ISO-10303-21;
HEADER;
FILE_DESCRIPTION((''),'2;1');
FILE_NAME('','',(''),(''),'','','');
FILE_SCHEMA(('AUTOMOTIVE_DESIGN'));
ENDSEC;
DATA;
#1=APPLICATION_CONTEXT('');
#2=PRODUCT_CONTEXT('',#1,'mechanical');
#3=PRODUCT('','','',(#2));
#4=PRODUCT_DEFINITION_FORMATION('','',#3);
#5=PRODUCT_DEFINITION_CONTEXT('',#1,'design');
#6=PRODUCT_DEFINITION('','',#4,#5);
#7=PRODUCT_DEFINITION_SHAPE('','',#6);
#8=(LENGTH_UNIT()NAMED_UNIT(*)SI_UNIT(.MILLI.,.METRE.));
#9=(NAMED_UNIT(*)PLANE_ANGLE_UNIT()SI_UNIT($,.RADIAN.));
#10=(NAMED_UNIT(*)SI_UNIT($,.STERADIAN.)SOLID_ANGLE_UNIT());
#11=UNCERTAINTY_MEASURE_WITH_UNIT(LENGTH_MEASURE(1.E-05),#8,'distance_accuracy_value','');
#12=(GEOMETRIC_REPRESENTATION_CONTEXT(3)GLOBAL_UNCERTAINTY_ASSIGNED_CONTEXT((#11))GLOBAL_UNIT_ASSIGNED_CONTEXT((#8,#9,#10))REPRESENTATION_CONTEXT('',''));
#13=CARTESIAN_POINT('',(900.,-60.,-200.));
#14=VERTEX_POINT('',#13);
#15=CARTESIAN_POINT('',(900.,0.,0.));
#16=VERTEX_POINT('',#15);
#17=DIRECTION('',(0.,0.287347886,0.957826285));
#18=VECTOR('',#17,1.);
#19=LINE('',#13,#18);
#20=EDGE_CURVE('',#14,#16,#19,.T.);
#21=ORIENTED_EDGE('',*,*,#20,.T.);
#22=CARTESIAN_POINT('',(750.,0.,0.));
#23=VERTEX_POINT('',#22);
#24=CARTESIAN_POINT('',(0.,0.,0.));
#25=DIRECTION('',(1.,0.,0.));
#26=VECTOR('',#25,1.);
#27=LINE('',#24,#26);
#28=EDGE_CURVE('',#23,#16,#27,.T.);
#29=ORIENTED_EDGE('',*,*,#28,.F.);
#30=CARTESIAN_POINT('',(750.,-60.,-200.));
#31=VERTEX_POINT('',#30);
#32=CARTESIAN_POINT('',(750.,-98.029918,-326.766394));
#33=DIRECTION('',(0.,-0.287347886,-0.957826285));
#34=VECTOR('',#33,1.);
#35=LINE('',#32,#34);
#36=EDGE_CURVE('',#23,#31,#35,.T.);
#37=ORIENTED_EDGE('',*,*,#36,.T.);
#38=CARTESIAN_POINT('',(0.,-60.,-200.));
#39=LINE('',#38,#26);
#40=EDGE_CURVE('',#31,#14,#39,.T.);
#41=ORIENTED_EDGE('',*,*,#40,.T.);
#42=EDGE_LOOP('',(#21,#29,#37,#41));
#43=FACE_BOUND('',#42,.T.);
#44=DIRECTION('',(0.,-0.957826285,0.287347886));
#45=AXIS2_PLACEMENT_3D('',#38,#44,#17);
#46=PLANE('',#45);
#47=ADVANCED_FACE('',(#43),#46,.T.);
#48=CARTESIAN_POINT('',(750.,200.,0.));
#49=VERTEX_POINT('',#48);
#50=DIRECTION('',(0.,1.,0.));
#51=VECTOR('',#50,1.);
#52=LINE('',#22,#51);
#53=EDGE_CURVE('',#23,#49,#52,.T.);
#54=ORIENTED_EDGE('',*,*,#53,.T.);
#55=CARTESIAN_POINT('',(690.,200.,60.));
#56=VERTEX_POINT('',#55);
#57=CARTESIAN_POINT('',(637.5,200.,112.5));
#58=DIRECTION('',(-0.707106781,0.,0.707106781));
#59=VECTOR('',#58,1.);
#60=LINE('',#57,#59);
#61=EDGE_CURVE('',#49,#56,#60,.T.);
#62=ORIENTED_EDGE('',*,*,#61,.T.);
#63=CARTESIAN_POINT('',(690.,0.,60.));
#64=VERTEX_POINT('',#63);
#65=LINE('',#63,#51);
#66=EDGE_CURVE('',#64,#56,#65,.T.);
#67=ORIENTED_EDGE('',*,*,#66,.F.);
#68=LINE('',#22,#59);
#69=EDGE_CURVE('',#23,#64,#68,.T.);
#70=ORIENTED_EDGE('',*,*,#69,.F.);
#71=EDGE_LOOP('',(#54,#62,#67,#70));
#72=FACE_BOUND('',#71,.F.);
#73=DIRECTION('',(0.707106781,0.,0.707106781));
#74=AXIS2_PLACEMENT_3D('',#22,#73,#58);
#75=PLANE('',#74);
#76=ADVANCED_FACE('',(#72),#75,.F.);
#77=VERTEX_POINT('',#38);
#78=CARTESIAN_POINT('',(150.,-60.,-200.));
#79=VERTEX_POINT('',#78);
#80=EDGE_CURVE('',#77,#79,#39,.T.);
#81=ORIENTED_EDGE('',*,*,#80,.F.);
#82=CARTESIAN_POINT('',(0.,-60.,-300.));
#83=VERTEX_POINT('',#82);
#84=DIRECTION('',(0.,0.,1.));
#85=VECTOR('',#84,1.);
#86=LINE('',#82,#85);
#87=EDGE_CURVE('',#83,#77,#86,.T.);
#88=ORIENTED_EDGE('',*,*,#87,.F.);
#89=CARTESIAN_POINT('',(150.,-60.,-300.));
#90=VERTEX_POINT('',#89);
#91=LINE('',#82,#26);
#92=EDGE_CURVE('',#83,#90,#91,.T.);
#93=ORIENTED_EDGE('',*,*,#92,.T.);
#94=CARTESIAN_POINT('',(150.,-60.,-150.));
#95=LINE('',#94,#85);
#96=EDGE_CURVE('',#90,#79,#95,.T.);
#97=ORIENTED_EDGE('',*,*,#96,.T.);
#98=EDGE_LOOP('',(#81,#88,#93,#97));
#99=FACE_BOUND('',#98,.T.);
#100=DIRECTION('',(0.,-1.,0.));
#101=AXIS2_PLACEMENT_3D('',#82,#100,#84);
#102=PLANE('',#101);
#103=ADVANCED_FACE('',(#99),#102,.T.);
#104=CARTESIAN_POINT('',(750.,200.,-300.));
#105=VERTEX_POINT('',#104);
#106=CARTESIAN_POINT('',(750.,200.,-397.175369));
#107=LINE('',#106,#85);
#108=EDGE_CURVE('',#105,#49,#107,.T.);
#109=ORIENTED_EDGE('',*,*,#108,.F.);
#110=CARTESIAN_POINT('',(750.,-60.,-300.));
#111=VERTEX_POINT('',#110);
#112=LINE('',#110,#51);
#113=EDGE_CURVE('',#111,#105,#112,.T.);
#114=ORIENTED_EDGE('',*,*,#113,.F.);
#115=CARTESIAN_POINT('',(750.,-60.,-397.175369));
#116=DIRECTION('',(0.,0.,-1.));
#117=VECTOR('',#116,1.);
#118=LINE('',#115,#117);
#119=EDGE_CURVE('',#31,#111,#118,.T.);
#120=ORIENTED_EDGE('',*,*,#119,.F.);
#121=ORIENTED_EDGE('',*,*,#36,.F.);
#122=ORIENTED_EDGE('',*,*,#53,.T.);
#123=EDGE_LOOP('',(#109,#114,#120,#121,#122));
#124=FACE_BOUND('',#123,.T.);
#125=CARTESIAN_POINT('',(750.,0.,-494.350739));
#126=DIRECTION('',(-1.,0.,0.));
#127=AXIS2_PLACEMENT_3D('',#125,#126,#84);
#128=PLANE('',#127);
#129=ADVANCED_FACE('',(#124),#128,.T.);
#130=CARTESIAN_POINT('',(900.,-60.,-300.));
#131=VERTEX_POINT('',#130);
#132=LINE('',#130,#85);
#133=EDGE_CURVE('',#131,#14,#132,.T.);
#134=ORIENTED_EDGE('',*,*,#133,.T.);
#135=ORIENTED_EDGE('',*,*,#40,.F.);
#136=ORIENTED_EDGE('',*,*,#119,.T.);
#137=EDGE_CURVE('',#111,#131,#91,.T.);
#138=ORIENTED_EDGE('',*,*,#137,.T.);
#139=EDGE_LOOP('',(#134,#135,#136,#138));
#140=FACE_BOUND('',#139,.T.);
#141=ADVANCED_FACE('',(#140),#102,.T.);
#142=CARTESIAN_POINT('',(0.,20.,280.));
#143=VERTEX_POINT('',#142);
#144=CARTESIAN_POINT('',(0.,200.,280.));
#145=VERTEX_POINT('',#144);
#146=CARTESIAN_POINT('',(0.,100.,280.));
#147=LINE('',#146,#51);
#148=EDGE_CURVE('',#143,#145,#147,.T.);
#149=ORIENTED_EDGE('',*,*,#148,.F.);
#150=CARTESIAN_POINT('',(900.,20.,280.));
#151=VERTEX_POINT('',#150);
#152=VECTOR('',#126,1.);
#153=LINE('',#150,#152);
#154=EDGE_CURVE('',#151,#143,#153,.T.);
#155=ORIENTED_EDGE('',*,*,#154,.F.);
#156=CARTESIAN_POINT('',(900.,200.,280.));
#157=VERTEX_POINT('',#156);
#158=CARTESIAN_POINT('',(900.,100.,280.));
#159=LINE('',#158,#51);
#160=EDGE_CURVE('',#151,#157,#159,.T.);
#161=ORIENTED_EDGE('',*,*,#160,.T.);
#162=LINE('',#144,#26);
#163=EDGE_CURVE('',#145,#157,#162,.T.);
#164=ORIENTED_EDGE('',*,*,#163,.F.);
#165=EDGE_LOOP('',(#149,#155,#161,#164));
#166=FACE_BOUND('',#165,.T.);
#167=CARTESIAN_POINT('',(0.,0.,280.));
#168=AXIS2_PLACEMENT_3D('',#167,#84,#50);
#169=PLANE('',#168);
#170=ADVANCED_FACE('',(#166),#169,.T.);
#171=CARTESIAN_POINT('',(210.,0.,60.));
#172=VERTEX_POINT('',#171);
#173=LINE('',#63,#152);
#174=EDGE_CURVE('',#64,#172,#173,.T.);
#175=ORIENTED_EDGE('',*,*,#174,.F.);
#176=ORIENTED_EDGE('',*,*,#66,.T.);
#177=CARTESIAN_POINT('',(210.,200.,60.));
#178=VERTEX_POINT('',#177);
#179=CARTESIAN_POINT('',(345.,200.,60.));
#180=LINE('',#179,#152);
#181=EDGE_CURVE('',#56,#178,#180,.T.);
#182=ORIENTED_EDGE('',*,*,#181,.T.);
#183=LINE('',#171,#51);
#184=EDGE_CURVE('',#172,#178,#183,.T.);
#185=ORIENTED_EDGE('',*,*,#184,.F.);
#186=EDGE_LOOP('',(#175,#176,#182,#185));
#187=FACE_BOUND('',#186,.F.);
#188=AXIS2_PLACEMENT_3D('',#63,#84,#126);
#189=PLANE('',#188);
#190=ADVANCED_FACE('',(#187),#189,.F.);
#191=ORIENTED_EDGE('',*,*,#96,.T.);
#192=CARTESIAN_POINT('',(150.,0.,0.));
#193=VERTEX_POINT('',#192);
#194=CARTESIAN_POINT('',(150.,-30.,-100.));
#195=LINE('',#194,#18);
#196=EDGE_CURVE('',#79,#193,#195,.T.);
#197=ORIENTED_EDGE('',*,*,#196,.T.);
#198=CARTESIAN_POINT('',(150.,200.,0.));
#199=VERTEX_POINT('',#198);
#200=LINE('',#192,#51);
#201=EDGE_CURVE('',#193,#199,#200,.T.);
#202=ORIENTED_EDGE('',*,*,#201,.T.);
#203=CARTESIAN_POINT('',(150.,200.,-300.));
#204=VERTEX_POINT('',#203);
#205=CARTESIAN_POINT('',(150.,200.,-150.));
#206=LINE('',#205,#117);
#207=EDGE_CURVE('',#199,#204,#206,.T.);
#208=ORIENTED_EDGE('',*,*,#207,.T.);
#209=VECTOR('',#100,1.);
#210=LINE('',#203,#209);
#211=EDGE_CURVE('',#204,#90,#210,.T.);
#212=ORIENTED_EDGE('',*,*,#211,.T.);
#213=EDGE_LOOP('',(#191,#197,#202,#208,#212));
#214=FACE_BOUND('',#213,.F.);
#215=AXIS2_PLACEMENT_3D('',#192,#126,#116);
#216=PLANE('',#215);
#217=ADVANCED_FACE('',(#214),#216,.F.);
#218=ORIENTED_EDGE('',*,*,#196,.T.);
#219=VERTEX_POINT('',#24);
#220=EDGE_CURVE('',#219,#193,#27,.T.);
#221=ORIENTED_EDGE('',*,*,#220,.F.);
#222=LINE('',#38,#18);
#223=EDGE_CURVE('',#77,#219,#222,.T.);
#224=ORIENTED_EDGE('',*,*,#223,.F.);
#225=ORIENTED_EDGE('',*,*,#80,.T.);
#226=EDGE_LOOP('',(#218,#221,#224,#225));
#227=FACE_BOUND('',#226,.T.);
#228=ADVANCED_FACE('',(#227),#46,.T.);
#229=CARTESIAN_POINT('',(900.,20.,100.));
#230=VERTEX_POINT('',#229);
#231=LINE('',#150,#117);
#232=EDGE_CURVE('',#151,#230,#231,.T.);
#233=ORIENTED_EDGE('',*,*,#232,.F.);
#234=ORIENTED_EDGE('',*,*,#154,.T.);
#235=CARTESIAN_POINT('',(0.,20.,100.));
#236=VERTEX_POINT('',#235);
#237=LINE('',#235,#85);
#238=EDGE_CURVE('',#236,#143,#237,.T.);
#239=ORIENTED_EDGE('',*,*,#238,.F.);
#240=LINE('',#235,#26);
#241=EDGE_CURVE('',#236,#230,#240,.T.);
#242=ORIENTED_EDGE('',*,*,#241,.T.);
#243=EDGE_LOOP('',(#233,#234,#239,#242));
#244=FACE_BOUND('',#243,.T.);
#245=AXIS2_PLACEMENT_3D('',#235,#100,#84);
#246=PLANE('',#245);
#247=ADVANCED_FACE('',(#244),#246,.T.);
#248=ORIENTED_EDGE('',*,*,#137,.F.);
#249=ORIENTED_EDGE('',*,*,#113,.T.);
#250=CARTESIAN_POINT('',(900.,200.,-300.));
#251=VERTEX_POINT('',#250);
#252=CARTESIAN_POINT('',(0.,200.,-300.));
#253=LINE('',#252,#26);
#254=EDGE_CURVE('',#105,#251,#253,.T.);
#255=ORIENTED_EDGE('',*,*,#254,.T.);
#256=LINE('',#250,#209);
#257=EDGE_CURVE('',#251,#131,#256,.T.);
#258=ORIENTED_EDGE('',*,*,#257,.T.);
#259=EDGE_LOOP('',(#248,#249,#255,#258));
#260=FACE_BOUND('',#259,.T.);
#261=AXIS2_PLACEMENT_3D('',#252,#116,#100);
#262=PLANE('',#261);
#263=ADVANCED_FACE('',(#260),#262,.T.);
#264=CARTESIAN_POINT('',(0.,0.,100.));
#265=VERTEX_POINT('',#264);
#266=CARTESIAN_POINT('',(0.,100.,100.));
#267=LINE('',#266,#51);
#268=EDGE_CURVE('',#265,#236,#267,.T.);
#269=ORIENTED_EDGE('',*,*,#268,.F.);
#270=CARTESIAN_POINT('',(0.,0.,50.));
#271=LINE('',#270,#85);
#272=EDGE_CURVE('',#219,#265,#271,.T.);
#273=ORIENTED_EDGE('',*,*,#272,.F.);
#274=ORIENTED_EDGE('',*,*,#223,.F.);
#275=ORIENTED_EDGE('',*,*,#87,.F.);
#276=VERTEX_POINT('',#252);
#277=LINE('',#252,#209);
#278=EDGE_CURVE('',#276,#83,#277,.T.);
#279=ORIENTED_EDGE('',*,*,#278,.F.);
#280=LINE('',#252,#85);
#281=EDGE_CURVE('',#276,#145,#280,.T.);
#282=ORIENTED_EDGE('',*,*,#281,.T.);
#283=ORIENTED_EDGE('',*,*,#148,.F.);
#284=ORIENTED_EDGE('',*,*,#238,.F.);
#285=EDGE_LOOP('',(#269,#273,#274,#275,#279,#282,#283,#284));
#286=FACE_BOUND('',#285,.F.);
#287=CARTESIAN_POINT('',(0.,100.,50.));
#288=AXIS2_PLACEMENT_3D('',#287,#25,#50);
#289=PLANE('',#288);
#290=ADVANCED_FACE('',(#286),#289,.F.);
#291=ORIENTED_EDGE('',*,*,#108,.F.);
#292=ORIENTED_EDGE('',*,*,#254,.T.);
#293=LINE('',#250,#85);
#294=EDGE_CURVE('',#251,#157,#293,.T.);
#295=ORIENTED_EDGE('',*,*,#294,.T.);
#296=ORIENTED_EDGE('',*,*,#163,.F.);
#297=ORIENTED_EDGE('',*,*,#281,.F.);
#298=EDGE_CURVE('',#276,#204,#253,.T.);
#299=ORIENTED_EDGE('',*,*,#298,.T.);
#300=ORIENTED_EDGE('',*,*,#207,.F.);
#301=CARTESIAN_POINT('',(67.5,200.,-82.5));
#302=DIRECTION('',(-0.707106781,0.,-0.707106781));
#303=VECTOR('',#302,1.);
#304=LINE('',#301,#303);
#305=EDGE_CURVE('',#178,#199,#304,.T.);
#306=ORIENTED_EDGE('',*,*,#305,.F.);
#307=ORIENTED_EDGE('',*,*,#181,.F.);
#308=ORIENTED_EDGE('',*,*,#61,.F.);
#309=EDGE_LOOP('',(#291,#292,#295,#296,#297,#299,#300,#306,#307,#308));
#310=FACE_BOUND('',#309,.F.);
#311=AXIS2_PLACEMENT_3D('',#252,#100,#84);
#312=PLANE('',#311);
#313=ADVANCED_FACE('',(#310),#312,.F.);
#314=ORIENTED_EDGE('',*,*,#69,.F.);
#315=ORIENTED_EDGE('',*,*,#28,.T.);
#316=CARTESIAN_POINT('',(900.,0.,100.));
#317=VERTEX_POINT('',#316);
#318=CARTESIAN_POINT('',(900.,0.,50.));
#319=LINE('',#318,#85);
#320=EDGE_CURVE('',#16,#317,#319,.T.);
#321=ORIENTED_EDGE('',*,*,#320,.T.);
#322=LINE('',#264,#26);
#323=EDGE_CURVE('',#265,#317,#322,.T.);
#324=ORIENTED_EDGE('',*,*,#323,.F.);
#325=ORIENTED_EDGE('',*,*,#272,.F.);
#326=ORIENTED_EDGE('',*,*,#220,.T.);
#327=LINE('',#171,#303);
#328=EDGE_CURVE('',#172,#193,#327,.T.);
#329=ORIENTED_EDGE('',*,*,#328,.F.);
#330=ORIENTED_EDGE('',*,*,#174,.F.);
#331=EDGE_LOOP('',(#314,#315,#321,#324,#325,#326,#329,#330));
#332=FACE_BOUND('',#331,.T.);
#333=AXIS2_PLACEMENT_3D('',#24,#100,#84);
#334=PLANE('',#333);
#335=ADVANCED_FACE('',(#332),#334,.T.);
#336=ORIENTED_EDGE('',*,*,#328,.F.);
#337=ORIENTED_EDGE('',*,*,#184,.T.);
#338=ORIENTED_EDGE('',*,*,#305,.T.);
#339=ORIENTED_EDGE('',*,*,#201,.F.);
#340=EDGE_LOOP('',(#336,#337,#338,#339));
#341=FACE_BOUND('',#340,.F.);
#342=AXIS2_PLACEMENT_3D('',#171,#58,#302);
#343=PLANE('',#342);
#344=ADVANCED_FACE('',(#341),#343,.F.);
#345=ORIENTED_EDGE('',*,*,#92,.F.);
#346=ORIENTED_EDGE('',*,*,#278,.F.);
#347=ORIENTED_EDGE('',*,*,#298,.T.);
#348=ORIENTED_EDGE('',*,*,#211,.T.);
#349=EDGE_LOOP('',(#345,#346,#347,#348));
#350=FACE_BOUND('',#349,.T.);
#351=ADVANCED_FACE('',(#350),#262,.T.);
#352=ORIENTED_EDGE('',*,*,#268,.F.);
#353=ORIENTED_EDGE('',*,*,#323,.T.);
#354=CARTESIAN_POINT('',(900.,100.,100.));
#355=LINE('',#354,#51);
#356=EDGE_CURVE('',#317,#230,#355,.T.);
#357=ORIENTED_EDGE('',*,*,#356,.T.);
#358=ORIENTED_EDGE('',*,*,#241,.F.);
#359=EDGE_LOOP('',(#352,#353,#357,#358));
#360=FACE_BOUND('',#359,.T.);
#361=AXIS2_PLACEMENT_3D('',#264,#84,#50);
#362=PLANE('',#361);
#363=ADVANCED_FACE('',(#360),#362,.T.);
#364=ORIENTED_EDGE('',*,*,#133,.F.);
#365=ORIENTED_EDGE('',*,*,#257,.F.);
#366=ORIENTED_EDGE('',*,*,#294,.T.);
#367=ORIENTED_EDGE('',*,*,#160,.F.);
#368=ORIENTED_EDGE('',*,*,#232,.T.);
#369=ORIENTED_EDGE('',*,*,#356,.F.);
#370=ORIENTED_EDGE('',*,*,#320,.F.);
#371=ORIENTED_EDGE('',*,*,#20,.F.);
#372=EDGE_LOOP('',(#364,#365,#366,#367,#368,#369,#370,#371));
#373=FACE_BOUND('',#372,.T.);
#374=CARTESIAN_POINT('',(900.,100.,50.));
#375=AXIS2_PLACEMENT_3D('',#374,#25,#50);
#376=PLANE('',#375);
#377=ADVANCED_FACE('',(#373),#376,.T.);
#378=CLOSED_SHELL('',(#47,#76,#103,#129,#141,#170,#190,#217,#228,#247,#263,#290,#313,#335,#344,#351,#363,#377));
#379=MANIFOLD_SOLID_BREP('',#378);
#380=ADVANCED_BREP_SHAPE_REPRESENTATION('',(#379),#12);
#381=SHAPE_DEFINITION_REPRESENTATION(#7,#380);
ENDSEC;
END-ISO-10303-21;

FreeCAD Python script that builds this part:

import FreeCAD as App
import Part
import Sketcher
from FreeCAD import Vector
Q = App.Units.Quantity


def add_polygon(sketch, points):
    """Adds a closed chain of lines whose ends are joined by coincident constraints."""
    first, n = sketch.GeometryCount, len(points)
    for a, b in zip(points, points[1:] + points[:1]):
        sketch.addGeometry(Part.LineSegment(App.Vector(*a, 0), App.Vector(*b, 0)), False)
    for i in range(n):
        sketch.addConstraint(Sketcher.Constraint("Coincident", first + i, 2, first + (i + 1) % n, 1))

doc = App.newDocument("Part")
params = doc.addObject("Spreadsheet::Sheet", "Params")
for row, (alias, value) in enumerate([
    ("sketch1_width", "260 mm"),
    ("sketch1_width2", "200 mm"),
    ("sketch1_width3", "20 mm"),
    ("sketch1_height", "100 mm"),
    ("sketch1_height2", "580 mm"),
    ("pad1_length", "900 mm"),
    ("sketch2_width", "600 mm"),
    ("sketch2_width2", "480 mm"),
    ("sketch3_width", "20 mm"),
    ("sketch3_height", "30 mm"),
], start=1):
    params.set(f"A{row}", alias)
    params.set(f"B{row}", "=" + value)
    params.setAlias(f"B{row}", alias)

body = doc.addObject("PartDesign::Body", "Body")

sketch1 = body.newObject("Sketcher::SketchObject", "Sketch")
sketch1.AttachmentSupport = (doc.getObject("YZ_Plane"), [""])
sketch1.MapMode = "FlatFace"
add_polygon(sketch1, [(0, 100), (0, 0), (-60, -200), (-60, -300), (200, -300), (200, 280), (0, 280), (0, 250), (20, 250), (20, 100)])
sketch1.addConstraint([
    Sketcher.Constraint("Vertical", 0),
    Sketcher.Constraint("Vertical", 2),
    Sketcher.Constraint("Horizontal", 3),
    Sketcher.Constraint("Vertical", 4),
    Sketcher.Constraint("Horizontal", 5),
    Sketcher.Constraint("Vertical", 6),
    Sketcher.Constraint("Horizontal", 7),
    Sketcher.Constraint("Vertical", 8),
    Sketcher.Constraint("Horizontal", 9),
    Sketcher.Constraint("Coincident", 0, 2, -1, 1),
    Sketcher.Constraint("PointOnObject", 5, 2, -2),
    Sketcher.Constraint("Equal", 0, 2),
    Sketcher.Constraint("DistanceX", 3, 1, 3, 2, Q("260 mm")),
    Sketcher.Constraint("DistanceX", 5, 2, 5, 1, Q("200 mm")),
    Sketcher.Constraint("DistanceX", 7, 1, 7, 2, Q("20 mm")),
    Sketcher.Constraint("DistanceY", 0, 2, 0, 1, Q("100 mm")),
    Sketcher.Constraint("DistanceY", 4, 1, 4, 2, Q("580 mm")),
    Sketcher.Constraint("DistanceY", 6, 2, 6, 1, Q("30 mm")),
    Sketcher.Constraint("DistanceY", 8, 2, 8, 1, Q("150 mm")),
])
sketch1.setExpression("Constraints[22]", "Params.sketch1_width")
sketch1.setExpression("Constraints[23]", "Params.sketch1_width2")
sketch1.setExpression("Constraints[24]", "Params.sketch1_width3")
sketch1.setExpression("Constraints[25]", "Params.sketch1_height")
sketch1.setExpression("Constraints[26]", "Params.sketch1_height2")
pad1 = body.newObject("PartDesign::Pad", "Pad")
pad1.Profile = sketch1
pad1.setExpression("Length", "Params.pad1_length")

sketch2 = body.newObject("Sketcher::SketchObject", "Sketch001")
sketch2.AttachmentSupport = (doc.getObject("XZ_Plane"), [""])
sketch2.MapMode = "FlatFace"
add_polygon(sketch2, [(150, 0), (150, -494.350739), (750, -494.350739), (750, 0), (690, 60), (210, 60)])
sketch2.addConstraint([
    Sketcher.Constraint("Vertical", 0),
    Sketcher.Constraint("Horizontal", 1),
    Sketcher.Constraint("Vertical", 2),
    Sketcher.Constraint("Horizontal", 4),
    Sketcher.Constraint("PointOnObject", 2, 2, -1),
    Sketcher.Constraint("PointOnObject", 5, 2, -1),
    Sketcher.Constraint("Perpendicular", 3, 5),
    Sketcher.Constraint("Equal", 3, 5),
    Sketcher.Constraint("DistanceX", 1, 1, 1, 2, Q("600 mm")),
    Sketcher.Constraint("DistanceX", 4, 2, 4, 1, Q("480 mm")),
    Sketcher.Constraint("DistanceX", -1, 1, 0, 2, Q("150 mm")),
    Sketcher.Constraint("DistanceY", 0, 2, 0, 1, Q("494.350739 mm")),
])
sketch2.setExpression("Constraints[14]", "Params.sketch2_width")
sketch2.setExpression("Constraints[15]", "Params.sketch2_width2")
pocket1 = body.newObject("PartDesign::Pocket", "Pocket")
pocket1.Profile = sketch2
pocket1.Type = "ThroughAll"
pocket1.Midplane = True

sketch3 = body.newObject("Sketcher::SketchObject", "Sketch002")
sketch3.AttachmentSupport = (doc.getObject("YZ_Plane"), [""])
sketch3.MapMode = "FlatFace"
sketch3.AttachmentOffset = App.Placement(Vector(0, 0, 900), App.Rotation())
add_polygon(sketch3, [(0, 280), (0, 250), (20, 250), (20, 280)])
sketch3.addConstraint([
    Sketcher.Constraint("Vertical", 0),
    Sketcher.Constraint("Horizontal", 1),
    Sketcher.Constraint("Vertical", 2),
    Sketcher.Constraint("Horizontal", 3),
    Sketcher.Constraint("PointOnObject", 0, 2, -2),
    Sketcher.Constraint("DistanceX", 1, 1, 1, 2, Q("20 mm")),
    Sketcher.Constraint("DistanceY", 0, 2, 0, 1, Q("30 mm")),
    Sketcher.Constraint("DistanceY", -1, 1, 0, 2, Q("250 mm")),
])
sketch3.setExpression("Constraints[9]", "Params.sketch3_width")
sketch3.setExpression("Constraints[10]", "Params.sketch3_height")
pocket2 = body.newObject("PartDesign::Pocket", "Pocket001")
pocket2.Profile = sketch3
pocket2.Type = "ThroughAll"

doc.recompute()
